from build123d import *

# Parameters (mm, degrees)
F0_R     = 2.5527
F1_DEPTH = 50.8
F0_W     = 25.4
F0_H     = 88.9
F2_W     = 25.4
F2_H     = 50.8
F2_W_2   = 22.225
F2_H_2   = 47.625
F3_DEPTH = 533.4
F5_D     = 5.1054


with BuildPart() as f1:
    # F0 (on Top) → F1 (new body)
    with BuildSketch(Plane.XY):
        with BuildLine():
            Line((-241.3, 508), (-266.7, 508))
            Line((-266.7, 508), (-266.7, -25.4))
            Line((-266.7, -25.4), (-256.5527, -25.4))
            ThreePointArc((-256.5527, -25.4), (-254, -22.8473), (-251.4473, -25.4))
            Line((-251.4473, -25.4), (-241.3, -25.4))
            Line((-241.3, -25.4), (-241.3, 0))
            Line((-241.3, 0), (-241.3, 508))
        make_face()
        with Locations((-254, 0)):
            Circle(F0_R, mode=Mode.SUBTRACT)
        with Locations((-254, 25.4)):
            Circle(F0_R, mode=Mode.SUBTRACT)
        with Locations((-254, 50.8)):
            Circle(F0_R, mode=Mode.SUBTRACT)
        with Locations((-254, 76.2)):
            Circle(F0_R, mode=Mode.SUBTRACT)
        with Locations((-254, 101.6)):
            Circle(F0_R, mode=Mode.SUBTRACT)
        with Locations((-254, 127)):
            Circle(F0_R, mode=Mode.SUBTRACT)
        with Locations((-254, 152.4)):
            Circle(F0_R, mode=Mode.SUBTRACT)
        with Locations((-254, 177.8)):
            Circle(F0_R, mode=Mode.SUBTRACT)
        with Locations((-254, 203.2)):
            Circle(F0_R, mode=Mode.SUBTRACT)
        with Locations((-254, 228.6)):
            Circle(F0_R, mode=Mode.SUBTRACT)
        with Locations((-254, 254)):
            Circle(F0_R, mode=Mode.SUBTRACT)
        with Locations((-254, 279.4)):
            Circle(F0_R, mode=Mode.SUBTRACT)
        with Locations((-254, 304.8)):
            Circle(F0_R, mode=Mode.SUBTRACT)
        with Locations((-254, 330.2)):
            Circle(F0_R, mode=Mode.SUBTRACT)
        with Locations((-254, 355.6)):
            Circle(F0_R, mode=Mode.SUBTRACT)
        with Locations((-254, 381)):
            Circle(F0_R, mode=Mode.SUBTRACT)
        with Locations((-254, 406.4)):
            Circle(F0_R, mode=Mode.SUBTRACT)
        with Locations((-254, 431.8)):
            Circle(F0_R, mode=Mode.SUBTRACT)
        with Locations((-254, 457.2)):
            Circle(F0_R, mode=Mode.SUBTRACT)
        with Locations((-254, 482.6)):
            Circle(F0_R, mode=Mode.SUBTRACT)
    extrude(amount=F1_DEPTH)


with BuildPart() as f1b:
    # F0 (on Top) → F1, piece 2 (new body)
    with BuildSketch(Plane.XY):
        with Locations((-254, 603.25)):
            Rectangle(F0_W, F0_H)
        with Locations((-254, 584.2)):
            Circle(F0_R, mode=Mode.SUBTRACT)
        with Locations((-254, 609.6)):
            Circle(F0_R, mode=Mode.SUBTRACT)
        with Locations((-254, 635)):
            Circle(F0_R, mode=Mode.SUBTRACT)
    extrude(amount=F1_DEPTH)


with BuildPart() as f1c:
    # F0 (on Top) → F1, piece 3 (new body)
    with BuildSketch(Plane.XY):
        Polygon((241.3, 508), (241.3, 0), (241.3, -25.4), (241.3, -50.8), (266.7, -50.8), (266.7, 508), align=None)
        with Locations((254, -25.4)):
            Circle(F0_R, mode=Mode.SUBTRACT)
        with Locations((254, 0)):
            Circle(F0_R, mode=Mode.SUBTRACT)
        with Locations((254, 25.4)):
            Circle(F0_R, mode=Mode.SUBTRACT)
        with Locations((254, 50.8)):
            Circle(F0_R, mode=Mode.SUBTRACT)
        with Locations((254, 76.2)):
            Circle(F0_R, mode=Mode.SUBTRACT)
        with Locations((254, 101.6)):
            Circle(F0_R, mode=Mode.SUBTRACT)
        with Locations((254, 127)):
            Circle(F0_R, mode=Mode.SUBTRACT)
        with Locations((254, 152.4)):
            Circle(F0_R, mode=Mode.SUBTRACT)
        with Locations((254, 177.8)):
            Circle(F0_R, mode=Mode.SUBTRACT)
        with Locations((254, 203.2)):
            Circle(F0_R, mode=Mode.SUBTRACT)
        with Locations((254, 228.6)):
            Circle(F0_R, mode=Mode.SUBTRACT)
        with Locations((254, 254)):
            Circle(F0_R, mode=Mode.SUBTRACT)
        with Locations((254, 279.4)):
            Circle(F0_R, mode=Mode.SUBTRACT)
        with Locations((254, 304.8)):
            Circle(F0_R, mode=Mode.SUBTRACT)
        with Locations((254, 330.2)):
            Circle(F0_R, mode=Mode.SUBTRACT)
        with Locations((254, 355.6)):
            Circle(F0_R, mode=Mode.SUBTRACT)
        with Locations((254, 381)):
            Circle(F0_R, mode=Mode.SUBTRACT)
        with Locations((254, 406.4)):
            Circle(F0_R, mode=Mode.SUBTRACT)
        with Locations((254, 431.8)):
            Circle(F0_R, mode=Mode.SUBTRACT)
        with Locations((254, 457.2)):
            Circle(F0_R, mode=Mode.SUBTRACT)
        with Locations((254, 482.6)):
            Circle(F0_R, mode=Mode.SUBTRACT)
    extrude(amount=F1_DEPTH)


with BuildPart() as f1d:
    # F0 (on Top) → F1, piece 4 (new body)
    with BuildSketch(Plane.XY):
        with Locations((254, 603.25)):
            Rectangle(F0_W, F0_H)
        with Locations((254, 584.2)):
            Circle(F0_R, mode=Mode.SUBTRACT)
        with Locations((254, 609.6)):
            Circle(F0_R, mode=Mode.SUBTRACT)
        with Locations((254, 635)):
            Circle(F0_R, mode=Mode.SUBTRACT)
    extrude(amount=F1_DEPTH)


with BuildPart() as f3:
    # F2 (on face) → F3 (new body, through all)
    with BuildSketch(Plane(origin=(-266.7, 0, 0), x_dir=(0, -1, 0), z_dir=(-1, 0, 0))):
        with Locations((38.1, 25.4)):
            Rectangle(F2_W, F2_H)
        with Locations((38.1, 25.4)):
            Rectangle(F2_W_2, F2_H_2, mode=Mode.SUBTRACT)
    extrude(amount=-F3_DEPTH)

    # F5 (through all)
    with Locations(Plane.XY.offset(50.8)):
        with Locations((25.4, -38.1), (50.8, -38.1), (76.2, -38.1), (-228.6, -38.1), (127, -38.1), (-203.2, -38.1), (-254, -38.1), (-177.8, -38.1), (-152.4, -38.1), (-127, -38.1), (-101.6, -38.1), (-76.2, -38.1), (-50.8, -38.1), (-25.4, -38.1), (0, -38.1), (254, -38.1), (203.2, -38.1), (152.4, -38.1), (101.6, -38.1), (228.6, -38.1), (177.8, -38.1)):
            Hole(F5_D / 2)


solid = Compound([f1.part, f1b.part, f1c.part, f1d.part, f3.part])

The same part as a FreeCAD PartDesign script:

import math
import FreeCAD as App
import Part
import Sketcher
Q = App.Units.Quantity


def add_polygon(sketch, points):
    """Adds a closed chain of lines whose ends are joined by coincident constraints."""
    first, n = sketch.GeometryCount, len(points)
    for a, b in zip(points, points[1:] + points[:1]):
        sketch.addGeometry(Part.LineSegment(App.Vector(*a, 0), App.Vector(*b, 0)), False)
    for i in range(n):
        sketch.addConstraint(Sketcher.Constraint("Coincident", first + i, 2, first + (i + 1) % n, 1))

doc = App.newDocument("Part")
body = doc.addObject("PartDesign::Body", "Body")

# Sketch on XY plane
sketch1 = body.newObject("Sketcher::SketchObject", "Sketch")
sketch1.AttachmentSupport = (doc.getObject("XY_Plane"), [""])
sketch1.MapMode = "FlatFace"
sketch1.addGeometry(Part.LineSegment(App.Vector(-241.3, 508, 0), App.Vector(-266.7, 508, 0)), False)
sketch1.addGeometry(Part.LineSegment(App.Vector(-266.7, 508, 0), App.Vector(-266.7, -25.4, 0)), False)
sketch1.addGeometry(Part.LineSegment(App.Vector(-266.7, -25.4, 0), App.Vector(-256.6, -25.4, 0)), False)
sketch1.addGeometry(Part.ArcOfCircle(Part.Circle(App.Vector(-254, -25.4, 0), App.Vector(0, 0, 1), 2.6), math.radians(0), math.radians(180)), False)
sketch1.addGeometry(Part.LineSegment(App.Vector(-251.4, -25.4, 0), App.Vector(-241.3, -25.4, 0)), False)
sketch1.addGeometry(Part.LineSegment(App.Vector(-241.3, -25.4, 0), App.Vector(-241.3, 508, 0)), False)
sketch1.addGeometry(Part.Circle(App.Vector(-254, 0, 0), App.Vector(0, 0, 1), 2.6), False)
sketch1.addGeometry(Part.Circle(App.Vector(-254, 25.4, 0), App.Vector(0, 0, 1), 2.6), False)
sketch1.addGeometry(Part.Circle(App.Vector(-254, 50.8, 0), App.Vector(0, 0, 1), 2.6), False)
sketch1.addGeometry(Part.Circle(App.Vector(-254, 76.2, 0), App.Vector(0, 0, 1), 2.6), False)
sketch1.addGeometry(Part.Circle(App.Vector(-254, 101.6, 0), App.Vector(0, 0, 1), 2.6), False)
sketch1.addGeometry(Part.Circle(App.Vector(-254, 127, 0), App.Vector(0, 0, 1), 2.6), False)
sketch1.addGeometry(Part.Circle(App.Vector(-254, 152.4, 0), App.Vector(0, 0, 1), 2.6), False)
sketch1.addGeometry(Part.Circle(App.Vector(-254, 177.8, 0), App.Vector(0, 0, 1), 2.6), False)
sketch1.addGeometry(Part.Circle(App.Vector(-254, 203.2, 0), App.Vector(0, 0, 1), 2.6), False)
sketch1.addGeometry(Part.Circle(App.Vector(-254, 228.6, 0), App.Vector(0, 0, 1), 2.6), False)
sketch1.addGeometry(Part.Circle(App.Vector(-254, 254, 0), App.Vector(0, 0, 1), 2.6), False)
sketch1.addGeometry(Part.Circle(App.Vector(-254, 279.4, 0), App.Vector(0, 0, 1), 2.6), False)
sketch1.addGeometry(Part.Circle(App.Vector(-254, 304.8, 0), App.Vector(0, 0, 1), 2.6), False)
sketch1.addGeometry(Part.Circle(App.Vector(-254, 330.2, 0), App.Vector(0, 0, 1), 2.6), False)
sketch1.addGeometry(Part.Circle(App.Vector(-254, 355.6, 0), App.Vector(0, 0, 1), 2.6), False)
sketch1.addGeometry(Part.Circle(App.Vector(-254, 381, 0), App.Vector(0, 0, 1), 2.6), False)
sketch1.addGeometry(Part.Circle(App.Vector(-254, 406.4, 0), App.Vector(0, 0, 1), 2.6), False)
sketch1.addGeometry(Part.Circle(App.Vector(-254, 431.8, 0), App.Vector(0, 0, 1), 2.6), False)
sketch1.addGeometry(Part.Circle(App.Vector(-254, 457.2, 0), App.Vector(0, 0, 1), 2.6), False)
sketch1.addGeometry(Part.Circle(App.Vector(-254, 482.6, 0), App.Vector(0, 0, 1), 2.6), False)
sketch1.addConstraint(Sketcher.Constraint("Coincident", 0, 2, 1, 1))
sketch1.addConstraint(Sketcher.Constraint("Coincident", 1, 2, 2, 1))
sketch1.addConstraint(Sketcher.Constraint("Coincident", 2, 2, 3, 2))
sketch1.addConstraint(Sketcher.Constraint("Coincident", 3, 1, 4, 1))
sketch1.addConstraint(Sketcher.Constraint("Coincident", 4, 2, 5, 1))
sketch1.addConstraint(Sketcher.Constraint("Coincident", 5, 2, 0, 1))
sketch1.addConstraint(Sketcher.Constraint("Horizontal", 0))
sketch1.addConstraint(Sketcher.Constraint("Vertical", 1))
sketch1.addConstraint(Sketcher.Constraint("Horizontal", 2))
sketch1.addConstraint(Sketcher.Constraint("Horizontal", 4))
sketch1.addConstraint(Sketcher.Constraint("Vertical", 5))
sketch1.addConstraint(Sketcher.Constraint("Equal", 3, 6))
sketch1.addConstraint(Sketcher.Constraint("Equal", 6, 7))
sketch1.addConstraint(Sketcher.Constraint("Equal", 7, 8))
sketch1.addConstraint(Sketcher.Constraint("Equal", 8, 9))
sketch1.addConstraint(Sketcher.Constraint("Equal", 9, 10))
sketch1.addConstraint(Sketcher.Constraint("Equal", 10, 11))
sketch1.addConstraint(Sketcher.Constraint("Equal", 11, 12))
sketch1.addConstraint(Sketcher.Constraint("Equal", 12, 13))
sketch1.addConstraint(Sketcher.Constraint("Equal", 13, 14))
sketch1.addConstraint(Sketcher.Constraint("Equal", 14, 15))
sketch1.addConstraint(Sketcher.Constraint("Equal", 15, 16))
sketch1.addConstraint(Sketcher.Constraint("Equal", 16, 17))
sketch1.addConstraint(Sketcher.Constraint("Equal", 17, 18))
sketch1.addConstraint(Sketcher.Constraint("Equal", 18, 19))
sketch1.addConstraint(Sketcher.Constraint("Equal", 19, 20))
sketch1.addConstraint(Sketcher.Constraint("Equal", 20, 21))
sketch1.addConstraint(Sketcher.Constraint("Equal", 21, 22))
sketch1.addConstraint(Sketcher.Constraint("Equal", 22, 23))
sketch1.addConstraint(Sketcher.Constraint("Equal", 23, 24))
sketch1.addConstraint(Sketcher.Constraint("Equal", 24, 25))
sketch1.addConstraint(Sketcher.Constraint("Symmetric", 3, 3, 7, 3, -1))
sketch1.addConstraint(Sketcher.Constraint("PointOnObject", 6, 3, -1))
sketch1.addConstraint(Sketcher.Constraint("Horizontal", 3, 3, 1, 2))
sketch1.addConstraint(Sketcher.Constraint("Horizontal", 2, 2, 3, 1))
sketch1.addConstraint(Sketcher.Constraint("Vertical", 3, 3, 6, 3))
sketch1.addConstraint(Sketcher.Constraint("Vertical", 7, 3, 8, 3))
sketch1.addConstraint(Sketcher.Constraint("Vertical", 8, 3, 9, 3))
sketch1.addConstraint(Sketcher.Constraint("Vertical", 9, 3, 10, 3))
sketch1.addConstraint(Sketcher.Constraint("Vertical", 10, 3, 11, 3))
sketch1.addConstraint(Sketcher.Constraint("Vertical", 11, 3, 12, 3))
sketch1.addConstraint(Sketcher.Constraint("Vertical", 12, 3, 13, 3))
sketch1.addConstraint(Sketcher.Constraint("Vertical", 13, 3, 14, 3))
sketch1.addConstraint(Sketcher.Constraint("Vertical", 14, 3, 15, 3))
sketch1.addConstraint(Sketcher.Constraint("Vertical", 15, 3, 16, 3))
sketch1.addConstraint(Sketcher.Constraint("Vertical", 16, 3, 17, 3))
sketch1.addConstraint(Sketcher.Constraint("Vertical", 17, 3, 18, 3))
sketch1.addConstraint(Sketcher.Constraint("Vertical", 18, 3, 19, 3))
sketch1.addConstraint(Sketcher.Constraint("Vertical", 19, 3, 20, 3))
sketch1.addConstraint(Sketcher.Constraint("Vertical", 20, 3, 21, 3))
sketch1.addConstraint(Sketcher.Constraint("Vertical", 21, 3, 22, 3))
sketch1.addConstraint(Sketcher.Constraint("Vertical", 22, 3, 23, 3))
sketch1.addConstraint(Sketcher.Constraint("Vertical", 23, 3, 24, 3))
sketch1.addConstraint(Sketcher.Constraint("Vertical", 24, 3, 25, 3))
sketch1.addConstraint(Sketcher.Constraint("Equal", 2, 4))
sketch1.addConstraint(Sketcher.Constraint("DistanceX", 0, 2, 0, 1, Q("1 in")))
sketch1.addConstraint(Sketcher.Constraint("DistanceY", 1, 2, 1, 1, Q("21 in")))
sketch1.addConstraint(Sketcher.Constraint("Diameter", 6, Q("0.201 in")))
sketch1.addConstraint(Sketcher.Constraint("DistanceX", 3, 3, -1, 1, Q("10 in")))
sketch1.addConstraint(Sketcher.Constraint("DistanceY", 3, 3, -1, 1, Q("1 in")))
sketch1.addConstraint(Sketcher.Constraint("DistanceY", -1, 1, 8, 3, Q("2 in")))
sketch1.addConstraint(Sketcher.Constraint("DistanceY", -1, 1, 9, 3, Q("3 in")))
sketch1.addConstraint(Sketcher.Constraint("DistanceY", -1, 1, 10, 3, Q("4 in")))
sketch1.addConstraint(Sketcher.Constraint("DistanceY", -1, 1, 11, 3, Q("5 in")))
sketch1.addConstraint(Sketcher.Constraint("DistanceY", -1, 1, 12, 3, Q("6 in")))
sketch1.addConstraint(Sketcher.Constraint("DistanceY", -1, 1, 13, 3, Q("7 in")))
sketch1.addConstraint(Sketcher.Constraint("DistanceY", -1, 1, 14, 3, Q("8 in")))
sketch1.addConstraint(Sketcher.Constraint("DistanceY", -1, 1, 15, 3, Q("9 in")))
sketch1.addConstraint(Sketcher.Constraint("DistanceY", -1, 1, 16, 3, Q("10 in")))
sketch1.addConstraint(Sketcher.Constraint("DistanceY", -1, 1, 17, 3, Q("11 in")))
sketch1.addConstraint(Sketcher.Constraint("DistanceY", -1, 1, 18, 3, Q("12 in")))
sketch1.addConstraint(Sketcher.Constraint("DistanceY", -1, 1, 19, 3, Q("13 in")))
sketch1.addConstraint(Sketcher.Constraint("DistanceY", -1, 1, 20, 3, Q("14 in")))
sketch1.addConstraint(Sketcher.Constraint("DistanceY", -1, 1, 21, 3, Q("15 in")))
sketch1.addConstraint(Sketcher.Constraint("DistanceY", -1, 1, 22, 3, Q("16 in")))
sketch1.addConstraint(Sketcher.Constraint("DistanceY", -1, 1, 23, 3, Q("17 in")))
sketch1.addConstraint(Sketcher.Constraint("DistanceY", -1, 1, 24, 3, Q("18 in")))
sketch1.addConstraint(Sketcher.Constraint("DistanceY", -1, 1, 25, 3, Q("19 in")))
pad1 = body.newObject("PartDesign::Pad", "Pad")
pad1.Profile = sketch1
pad1.Length = Q("2 in")
body2 = doc.addObject("PartDesign::Body", "Body001")

# Sketch on XY plane
sketch2 = body2.newObject("Sketcher::SketchObject", "Sketch001")
sketch2.AttachmentSupport = (doc.getObject("XY_Plane001"), [""])
sketch2.MapMode = "FlatFace"
add_polygon(sketch2, [(-266.7, 647.7), (-266.7, 558.8), (-241.3, 558.8), (-241.3, 647.7)])  # lines 0-3
sketch2.addGeometry(Part.Circle(App.Vector(-254, 584.2, 0), App.Vector(0, 0, 1), 2.6), False)  # 4
sketch2.addGeometry(Part.Circle(App.Vector(-254, 609.6, 0), App.Vector(0, 0, 1), 2.6), False)  # 5
sketch2.addGeometry(Part.Circle(App.Vector(-254, 635, 0), App.Vector(0, 0, 1), 2.6), False)  # 6
sketch2.addConstraint(Sketcher.Constraint("Vertical", 0))
sketch2.addConstraint(Sketcher.Constraint("Horizontal", 1))
sketch2.addConstraint(Sketcher.Constraint("Vertical", 2))
sketch2.addConstraint(Sketcher.Constraint("Horizontal", 3))
sketch2.addConstraint(Sketcher.Constraint("Equal", 4, 5))
sketch2.addConstraint(Sketcher.Constraint("Equal", 5, 6))
sketch2.addConstraint(Sketcher.Constraint("Vertical", 4, 3, 5, 3))
sketch2.addConstraint(Sketcher.Constraint("Vertical", 5, 3, 6, 3))
sketch2.addConstraint(Sketcher.Constraint("DistanceX", 1, 1, 1, 2, Q("1 in")))
sketch2.addConstraint(Sketcher.Constraint("Diameter", 4, Q("0.201 in")))
sketch2.addConstraint(Sketcher.Constraint("DistanceY", 0, 2, 0, 1, Q("3.5 in")))
sketch2.addConstraint(Sketcher.Constraint("DistanceX", 4, 3, -1, 1, Q("10 in")))
sketch2.addConstraint(Sketcher.Constraint("DistanceY", -1, 1, 4, 3, Q("23 in")))
sketch2.addConstraint(Sketcher.Constraint("DistanceY", -1, 1, 5, 3, Q("24 in")))
sketch2.addConstraint(Sketcher.Constraint("DistanceY", -1, 1, 6, 3, Q("25 in")))
sketch2.addConstraint(Sketcher.Constraint("DistanceY", -1, 1, 0, 2, Q("22 in")))
sketch2.addConstraint(Sketcher.Constraint("DistanceX", 0, 2, -1, 1, Q("10.5 in")))
pad2 = body2.newObject("PartDesign::Pad", "Pad001")
pad2.Profile = sketch2
pad2.Length = Q("2 in")
body3 = doc.addObject("PartDesign::Body", "Body002")

# Sketch on XY plane
sketch3 = body3.newObject("Sketcher::SketchObject", "Sketch002")
sketch3.AttachmentSupport = (doc.getObject("XY_Plane002"), [""])
sketch3.MapMode = "FlatFace"
add_polygon(sketch3, [(241.3, 508), (241.3, -50.8), (266.7, -50.8), (266.7, 508)])  # lines 0-3
sketch3.addGeometry(Part.Circle(App.Vector(254, -25.4, 0), App.Vector(0, 0, 1), 2.6), False)  # 4
sketch3.addGeometry(Part.Circle(App.Vector(254, 0, 0), App.Vector(0, 0, 1), 2.6), False)  # 5
sketch3.addGeometry(Part.Circle(App.Vector(254, 25.4, 0), App.Vector(0, 0, 1), 2.6), False)  # 6
sketch3.addGeometry(Part.Circle(App.Vector(254, 50.8, 0), App.Vector(0, 0, 1), 2.6), False)  # 7
sketch3.addGeometry(Part.Circle(App.Vector(254, 76.2, 0), App.Vector(0, 0, 1), 2.6), False)  # 8
sketch3.addGeometry(Part.Circle(App.Vector(254, 101.6, 0), App.Vector(0, 0, 1), 2.6), False)  # 9
sketch3.addGeometry(Part.Circle(App.Vector(254, 127, 0), App.Vector(0, 0, 1), 2.6), False)  # 10
sketch3.addGeometry(Part.Circle(App.Vector(254, 152.4, 0), App.Vector(0, 0, 1), 2.6), False)  # 11
sketch3.addGeometry(Part.Circle(App.Vector(254, 177.8, 0), App.Vector(0, 0, 1), 2.6), False)  # 12
sketch3.addGeometry(Part.Circle(App.Vector(254, 203.2, 0), App.Vector(0, 0, 1), 2.6), False)  # 13
sketch3.addGeometry(Part.Circle(App.Vector(254, 228.6, 0), App.Vector(0, 0, 1), 2.6), False)  # 14
sketch3.addGeometry(Part.Circle(App.Vector(254, 254, 0), App.Vector(0, 0, 1), 2.6), False)  # 15
sketch3.addGeometry(Part.Circle(App.Vector(254, 279.4, 0), App.Vector(0, 0, 1), 2.6), False)  # 16
sketch3.addGeometry(Part.Circle(App.Vector(254, 304.8, 0), App.Vector(0, 0, 1), 2.6), False)  # 17
sketch3.addGeometry(Part.Circle(App.Vector(254, 330.2, 0), App.Vector(0, 0, 1), 2.6), False)  # 18
sketch3.addGeometry(Part.Circle(App.Vector(254, 355.6, 0), App.Vector(0, 0, 1), 2.6), False)  # 19
sketch3.addGeometry(Part.Circle(App.Vector(254, 381, 0), App.Vector(0, 0, 1), 2.6), False)  # 20
sketch3.addGeometry(Part.Circle(App.Vector(254, 406.4, 0), App.Vector(0, 0, 1), 2.6), False)  # 21
sketch3.addGeometry(Part.Circle(App.Vector(254, 431.8, 0), App.Vector(0, 0, 1), 2.6), False)  # 22
sketch3.addGeometry(Part.Circle(App.Vector(254, 457.2, 0), App.Vector(0, 0, 1), 2.6), False)  # 23
sketch3.addGeometry(Part.Circle(App.Vector(254, 482.6, 0), App.Vector(0, 0, 1), 2.6), False)  # 24
sketch3.addConstraint(Sketcher.Constraint("Vertical", 0))
sketch3.addConstraint(Sketcher.Constraint("Horizontal", 1))
sketch3.addConstraint(Sketcher.Constraint("Vertical", 2))
sketch3.addConstraint(Sketcher.Constraint("Horizontal", 3))
sketch3.addConstraint(Sketcher.Constraint("Equal", 4, 5))
sketch3.addConstraint(Sketcher.Constraint("Equal", 5, 6))
sketch3.addConstraint(Sketcher.Constraint("Equal", 6, 7))
sketch3.addConstraint(Sketcher.Constraint("Equal", 7, 8))
sketch3.addConstraint(Sketcher.Constraint("Equal", 8, 9))
sketch3.addConstraint(Sketcher.Constraint("Equal", 9, 10))
sketch3.addConstraint(Sketcher.Constraint("Equal", 10, 11))
sketch3.addConstraint(Sketcher.Constraint("Equal", 11, 12))
sketch3.addConstraint(Sketcher.Constraint("Equal", 12, 13))
sketch3.addConstraint(Sketcher.Constraint("Equal", 13, 14))
sketch3.addConstraint(Sketcher.Constraint("Equal", 14, 15))
sketch3.addConstraint(Sketcher.Constraint("Equal", 15, 16))
sketch3.addConstraint(Sketcher.Constraint("Equal", 16, 17))
sketch3.addConstraint(Sketcher.Constraint("Equal", 17, 18))
sketch3.addConstraint(Sketcher.Constraint("Equal", 18, 19))
sketch3.addConstraint(Sketcher.Constraint("Equal", 19, 20))
sketch3.addConstraint(Sketcher.Constraint("Equal", 20, 21))
sketch3.addConstraint(Sketcher.Constraint("Equal", 21, 22))
sketch3.addConstraint(Sketcher.Constraint("Equal", 22, 23))
sketch3.addConstraint(Sketcher.Constraint("Equal", 23, 24))
sketch3.addConstraint(Sketcher.Constraint("Symmetric", 4, 3, 6, 3, -1))
sketch3.addConstraint(Sketcher.Constraint("PointOnObject", 5, 3, -1))
sketch3.addConstraint(Sketcher.Constraint("Vertical", 4, 3, 5, 3))
sketch3.addConstraint(Sketcher.Constraint("Vertical", 6, 3, 7, 3))
sketch3.addConstraint(Sketcher.Constraint("Vertical", 7, 3, 8, 3))
sketch3.addConstraint(Sketcher.Constraint("Vertical", 8, 3, 9, 3))
sketch3.addConstraint(Sketcher.Constraint("Vertical", 9, 3, 10, 3))
sketch3.addConstraint(Sketcher.Constraint("Vertical", 10, 3, 11, 3))
sketch3.addConstraint(Sketcher.Constraint("Vertical", 11, 3, 12, 3))
sketch3.addConstraint(Sketcher.Constraint("Vertical", 12, 3, 13, 3))
sketch3.addConstraint(Sketcher.Constraint("Vertical", 13, 3, 14, 3))
sketch3.addConstraint(Sketcher.Constraint("Vertical", 14, 3, 15, 3))
sketch3.addConstraint(Sketcher.Constraint("Vertical", 15, 3, 16, 3))
sketch3.addConstraint(Sketcher.Constraint("Vertical", 16, 3, 17, 3))
sketch3.addConstraint(Sketcher.Constraint("Vertical", 17, 3, 18, 3))
sketch3.addConstraint(Sketcher.Constraint("Vertical", 18, 3, 19, 3))
sketch3.addConstraint(Sketcher.Constraint("Vertical", 19, 3, 20, 3))
sketch3.addConstraint(Sketcher.Constraint("Vertical", 20, 3, 21, 3))
sketch3.addConstraint(Sketcher.Constraint("Vertical", 21, 3, 22, 3))
sketch3.addConstraint(Sketcher.Constraint("Vertical", 22, 3, 23, 3))
sketch3.addConstraint(Sketcher.Constraint("Vertical", 23, 3, 24, 3))
sketch3.addConstraint(Sketcher.Constraint("DistanceX", 1, 1, 1, 2, Q("1 in")))
sketch3.addConstraint(Sketcher.Constraint("DistanceY", 0, 2, 0, 1, Q("22 in")))
sketch3.addConstraint(Sketcher.Constraint("Diameter", 4, Q("0.201 in")))
sketch3.addConstraint(Sketcher.Constraint("DistanceX", -1, 1, 4, 3, Q("10 in")))
sketch3.addConstraint(Sketcher.Constraint("DistanceY", 4, 3, -1, 1, Q("1 in")))
sketch3.addConstraint(Sketcher.Constraint("DistanceY", -1, 1, 7, 3, Q("2 in")))
sketch3.addConstraint(Sketcher.Constraint("DistanceY", -1, 1, 8, 3, Q("3 in")))
sketch3.addConstraint(Sketcher.Constraint("DistanceY", -1, 1, 9, 3, Q("4 in")))
sketch3.addConstraint(Sketcher.Constraint("DistanceY", -1, 1, 10, 3, Q("5 in")))
sketch3.addConstraint(Sketcher.Constraint("DistanceY", -1, 1, 11, 3, Q("6 in")))
sketch3.addConstraint(Sketcher.Constraint("DistanceY", -1, 1, 12, 3, Q("7 in")))
sketch3.addConstraint(Sketcher.Constraint("DistanceY", -1, 1, 13, 3, Q("8 in")))
sketch3.addConstraint(Sketcher.Constraint("DistanceY", -1, 1, 14, 3, Q("9 in")))
sketch3.addConstraint(Sketcher.Constraint("DistanceY", -1, 1, 15, 3, Q("10 in")))
sketch3.addConstraint(Sketcher.Constraint("DistanceY", -1, 1, 16, 3, Q("11 in")))
sketch3.addConstraint(Sketcher.Constraint("DistanceY", -1, 1, 17, 3, Q("12 in")))
sketch3.addConstraint(Sketcher.Constraint("DistanceY", -1, 1, 18, 3, Q("13 in")))
sketch3.addConstraint(Sketcher.Constraint("DistanceY", -1, 1, 19, 3, Q("14 in")))
sketch3.addConstraint(Sketcher.Constraint("DistanceY", -1, 1, 20, 3, Q("15 in")))
sketch3.addConstraint(Sketcher.Constraint("DistanceY", -1, 1, 21, 3, Q("16 in")))
sketch3.addConstraint(Sketcher.Constraint("DistanceY", -1, 1, 22, 3, Q("17 in")))
sketch3.addConstraint(Sketcher.Constraint("DistanceY", -1, 1, 23, 3, Q("18 in")))
sketch3.addConstraint(Sketcher.Constraint("DistanceY", -1, 1, 24, 3, Q("19 in")))
sketch3.addConstraint(Sketcher.Constraint("DistanceY", 0, 2, -1, 1, Q("2 in")))
sketch3.addConstraint(Sketcher.Constraint("DistanceX", -1, 1, 0, 2, Q("9.5 in")))
pad3 = body3.newObject("PartDesign::Pad", "Pad002")
pad3.Profile = sketch3
pad3.Length = Q("2 in")
body4 = doc.addObject("PartDesign::Body", "Body003")

# Sketch on XY plane
sketch4 = body4.newObject("Sketcher::SketchObject", "Sketch003")
sketch4.AttachmentSupport = (doc.getObject("XY_Plane003"), [""])
sketch4.MapMode = "FlatFace"
add_polygon(sketch4, [(241.3, 647.7), (241.3, 558.8), (266.7, 558.8), (266.7, 647.7)])  # lines 0-3
sketch4.addGeometry(Part.Circle(App.Vector(254, 584.2, 0), App.Vector(0, 0, 1), 2.6), False)  # 4
sketch4.addGeometry(Part.Circle(App.Vector(254, 609.6, 0), App.Vector(0, 0, 1), 2.6), False)  # 5
sketch4.addGeometry(Part.Circle(App.Vector(254, 635, 0), App.Vector(0, 0, 1), 2.6), False)  # 6
sketch4.addConstraint(Sketcher.Constraint("Vertical", 0))
sketch4.addConstraint(Sketcher.Constraint("Horizontal", 1))
sketch4.addConstraint(Sketcher.Constraint("Vertical", 2))
sketch4.addConstraint(Sketcher.Constraint("Horizontal", 3))
sketch4.addConstraint(Sketcher.Constraint("Equal", 4, 5))
sketch4.addConstraint(Sketcher.Constraint("Equal", 5, 6))
sketch4.addConstraint(Sketcher.Constraint("Vertical", 4, 3, 5, 3))
sketch4.addConstraint(Sketcher.Constraint("Vertical", 5, 3, 6, 3))
sketch4.addConstraint(Sketcher.Constraint("DistanceX", 1, 1, 1, 2, Q("1 in")))
sketch4.addConstraint(Sketcher.Constraint("Diameter", 4, Q("0.201 in")))
sketch4.addConstraint(Sketcher.Constraint("DistanceY", 0, 2, 0, 1, Q("3.5 in")))
sketch4.addConstraint(Sketcher.Constraint("DistanceX", -1, 1, 4, 3, Q("10 in")))
sketch4.addConstraint(Sketcher.Constraint("DistanceY", -1, 1, 4, 3, Q("23 in")))
sketch4.addConstraint(Sketcher.Constraint("DistanceY", -1, 1, 5, 3, Q("24 in")))
sketch4.addConstraint(Sketcher.Constraint("DistanceY", -1, 1, 6, 3, Q("25 in")))
sketch4.addConstraint(Sketcher.Constraint("DistanceY", -1, 1, 0, 2, Q("22 in")))
sketch4.addConstraint(Sketcher.Constraint("DistanceX", -1, 1, 0, 2, Q("9.5 in")))
pad4 = body4.newObject("PartDesign::Pad", "Pad003")
pad4.Profile = sketch4
pad4.Length = Q("2 in")
body5 = doc.addObject("PartDesign::Body", "Body004")

# Sketch on YZ plane
sketch5 = body5.newObject("Sketcher::SketchObject", "Sketch004")
sketch5.AttachmentSupport = (doc.getObject("YZ_Plane004"), [""])
sketch5.MapMode = "FlatFace"
sketch5.AttachmentOffset = App.Placement(App.Vector(0, 0, -10.5 * 25.4), App.Rotation())
add_polygon(sketch5, [(-25, 51), (-25, 0), (-51, 0), (-51, 51)])  # lines 0-3
add_polygon(sketch5, [(-49, 2), (-27, 2), (-27, 49), (-49, 49)])  # lines 4-7
sketch5.addConstraint(Sketcher.Constraint("Vertical", 0))
sketch5.addConstraint(Sketcher.Constraint("Horizontal", 1))
sketch5.addConstraint(Sketcher.Constraint("Vertical", 2))
sketch5.addConstraint(Sketcher.Constraint("Horizontal", 3))
sketch5.addConstraint(Sketcher.Constraint("Horizontal", 4))
sketch5.addConstraint(Sketcher.Constraint("Vertical", 5))
sketch5.addConstraint(Sketcher.Constraint("Horizontal", 6))
sketch5.addConstraint(Sketcher.Constraint("Vertical", 7))
sketch5.addConstraint(Sketcher.Constraint("PointOnObject", 0, 2, -1))
sketch5.addConstraint(Sketcher.Constraint("DistanceX", 1, 2, 1, 1, Q("1 in")))
sketch5.addConstraint(Sketcher.Constraint("DistanceY", 0, 2, 0, 1, Q("2 in")))
sketch5.addConstraint(Sketcher.Constraint("DistanceX", 0, 2, -1, 1, Q("1 in")))
sketch5.addConstraint(Sketcher.Constraint("DistanceX", 4, 1, 4, 2, Q("0.875 in")))
sketch5.addConstraint(Sketcher.Constraint("DistanceY", 5, 1, 5, 2, Q("1.875 in")))
sketch5.addConstraint(Sketcher.Constraint("DistanceX", 4, 2, -1, 1, Q("1.0625 in")))
sketch5.addConstraint(Sketcher.Constraint("DistanceY", -1, 1, 4, 2, Q("0.0625 in")))
pad5 = body5.newObject("PartDesign::Pad", "Pad004")
pad5.Profile = sketch5
pad5.Length = Q("21 in")

# Sketch on XY plane
sketch6 = body5.newObject("Sketcher::SketchObject", "Sketch005")
sketch6.AttachmentSupport = (doc.getObject("XY_Plane004"), [""])
sketch6.MapMode = "FlatFace"
sketch6.AttachmentOffset = App.Placement(App.Vector(0, 0, 2 * 25.4), App.Rotation())
sketch6.addGeometry(Part.Circle(App.Vector(25.4, -38.1, 0), App.Vector(0, 0, 1), 2.6), False)
sketch6.addGeometry(Part.Circle(App.Vector(50.8, -38.1, 0), App.Vector(0, 0, 1), 2.6), False)
sketch6.addGeometry(Part.Circle(App.Vector(76.2, -38.1, 0), App.Vector(0, 0, 1), 2.6), False)
sketch6.addGeometry(Part.Circle(App.Vector(-228.6, -38.1, 0), App.Vector(0, 0, 1), 2.6), False)
sketch6.addGeometry(Part.Circle(App.Vector(127, -38.1, 0), App.Vector(0, 0, 1), 2.6), False)
sketch6.addGeometry(Part.Circle(App.Vector(-203.2, -38.1, 0), App.Vector(0, 0, 1), 2.6), False)
sketch6.addGeometry(Part.Circle(App.Vector(-254, -38.1, 0), App.Vector(0, 0, 1), 2.6), False)
sketch6.addGeometry(Part.Circle(App.Vector(-177.8, -38.1, 0), App.Vector(0, 0, 1), 2.6), False)
sketch6.addGeometry(Part.Circle(App.Vector(-152.4, -38.1, 0), App.Vector(0, 0, 1), 2.6), False)
sketch6.addGeometry(Part.Circle(App.Vector(-127, -38.1, 0), App.Vector(0, 0, 1), 2.6), False)
sketch6.addGeometry(Part.Circle(App.Vector(-101.6, -38.1, 0), App.Vector(0, 0, 1), 2.6), False)
sketch6.addGeometry(Part.Circle(App.Vector(-76.2, -38.1, 0), App.Vector(0, 0, 1), 2.6), False)
sketch6.addGeometry(Part.Circle(App.Vector(-50.8, -38.1, 0), App.Vector(0, 0, 1), 2.6), False)
sketch6.addGeometry(Part.Circle(App.Vector(-25.4, -38.1, 0), App.Vector(0, 0, 1), 2.6), False)
sketch6.addGeometry(Part.Circle(App.Vector(0, -38.1, 0), App.Vector(0, 0, 1), 2.6), False)
sketch6.addGeometry(Part.Circle(App.Vector(254, -38.1, 0), App.Vector(0, 0, 1), 2.6), False)
sketch6.addGeometry(Part.Circle(App.Vector(203.2, -38.1, 0), App.Vector(0, 0, 1), 2.6), False)
sketch6.addGeometry(Part.Circle(App.Vector(152.4, -38.1, 0), App.Vector(0, 0, 1), 2.6), False)
sketch6.addGeometry(Part.Circle(App.Vector(101.6, -38.1, 0), App.Vector(0, 0, 1), 2.6), False)
sketch6.addGeometry(Part.Circle(App.Vector(228.6, -38.1, 0), App.Vector(0, 0, 1), 2.6), False)
sketch6.addGeometry(Part.Circle(App.Vector(177.8, -38.1, 0), App.Vector(0, 0, 1), 2.6), False)
sketch6.addConstraint(Sketcher.Constraint("Equal", 0, 1))
sketch6.addConstraint(Sketcher.Constraint("Equal", 1, 2))
sketch6.addConstraint(Sketcher.Constraint("Equal", 2, 3))
sketch6.addConstraint(Sketcher.Constraint("Equal", 3, 4))
sketch6.addConstraint(Sketcher.Constraint("Equal", 4, 5))
sketch6.addConstraint(Sketcher.Constraint("Equal", 5, 6))
sketch6.addConstraint(Sketcher.Constraint("Equal", 6, 7))
sketch6.addConstraint(Sketcher.Constraint("Equal", 7, 8))
sketch6.addConstraint(Sketcher.Constraint("Equal", 8, 9))
sketch6.addConstraint(Sketcher.Constraint("Equal", 9, 10))
sketch6.addConstraint(Sketcher.Constraint("Equal", 10, 11))
sketch6.addConstraint(Sketcher.Constraint("Equal", 11, 12))
sketch6.addConstraint(Sketcher.Constraint("Equal", 12, 13))
sketch6.addConstraint(Sketcher.Constraint("Equal", 13, 14))
sketch6.addConstraint(Sketcher.Constraint("Equal", 14, 15))
sketch6.addConstraint(Sketcher.Constraint("Equal", 15, 16))
sketch6.addConstraint(Sketcher.Constraint("Equal", 16, 17))
sketch6.addConstraint(Sketcher.Constraint("Equal", 17, 18))
sketch6.addConstraint(Sketcher.Constraint("Equal", 18, 19))
sketch6.addConstraint(Sketcher.Constraint("Equal", 19, 20))
sketch6.addConstraint(Sketcher.Constraint("Symmetric", 4, 3, 9, 3, -2))
sketch6.addConstraint(Sketcher.Constraint("Symmetric", 2, 3, 11, 3, -2))
sketch6.addConstraint(Sketcher.Constraint("Symmetric", 1, 3, 12, 3, -2))
sketch6.addConstraint(Sketcher.Constraint("Symmetric", 0, 3, 13, 3, -2))
sketch6.addConstraint(Sketcher.Constraint("Symmetric", 6, 3, 15, 3, -2))
sketch6.addConstraint(Sketcher.Constraint("Symmetric", 5, 3, 16, 3, -2))
sketch6.addConstraint(Sketcher.Constraint("Symmetric", 8, 3, 17, 3, -2))
sketch6.addConstraint(Sketcher.Constraint("Symmetric", 10, 3, 18, 3, -2))
sketch6.addConstraint(Sketcher.Constraint("Symmetric", 3, 3, 19, 3, -2))
sketch6.addConstraint(Sketcher.Constraint("Symmetric", 7, 3, 20, 3, -2))
sketch6.addConstraint(Sketcher.Constraint("PointOnObject", 14, 3, -2))
sketch6.addConstraint(Sketcher.Constraint("Horizontal", 0, 3, 1, 3))
sketch6.addConstraint(Sketcher.Constraint("Horizontal", 1, 3, 2, 3))
sketch6.addConstraint(Sketcher.Constraint("Horizontal", 2, 3, 3, 3))
sketch6.addConstraint(Sketcher.Constraint("Horizontal", 3, 3, 4, 3))
sketch6.addConstraint(Sketcher.Constraint("Horizontal", 4, 3, 5, 3))
sketch6.addConstraint(Sketcher.Constraint("Horizontal", 5, 3, 6, 3))
sketch6.addConstraint(Sketcher.Constraint("Horizontal", 6, 3, 7, 3))
sketch6.addConstraint(Sketcher.Constraint("Horizontal", 7, 3, 8, 3))
sketch6.addConstraint(Sketcher.Constraint("Horizontal", 9, 3, 10, 3))
sketch6.addConstraint(Sketcher.Constraint("Horizontal", 13, 3, 14, 3))
sketch6.addConstraint(Sketcher.Constraint("Diameter", 0, Q("0.201 in")))
sketch6.addConstraint(Sketcher.Constraint("DistanceX", -1, 1, 0, 3, Q("1 in")))
sketch6.addConstraint(Sketcher.Constraint("DistanceX", -1, 1, 1, 3, Q("2 in")))
sketch6.addConstraint(Sketcher.Constraint("DistanceX", -1, 1, 2, 3, Q("3 in")))
sketch6.addConstraint(Sketcher.Constraint("DistanceX", 3, 3, -1, 1, Q("9 in")))
sketch6.addConstraint(Sketcher.Constraint("DistanceX", -1, 1, 4, 3, Q("5 in")))
sketch6.addConstraint(Sketcher.Constraint("DistanceX", 5, 3, -1, 1, Q("8 in")))
sketch6.addConstraint(Sketcher.Constraint("DistanceX", 6, 3, -1, 1, Q("10 in")))
sketch6.addConstraint(Sketcher.Constraint("DistanceX", 7, 3, -1, 1, Q("7 in")))
sketch6.addConstraint(Sketcher.Constraint("DistanceX", 8, 3, -1, 1, Q("6 in")))
sketch6.addConstraint(Sketcher.Constraint("DistanceX", 10, 3, -1, 1, Q("4 in")))
sketch6.addConstraint(Sketcher.Constraint("DistanceY", 0, 3, -1, 1, Q("1.5 in")))
doc.recompute()
hole = body5.newObject("PartDesign::Hole", "Hole")
hole.Profile = sketch6
hole.ThreadType = "None"
hole.Diameter = Q("0.201 in")
hole.DepthType = "ThroughAll"

doc.recompute()
